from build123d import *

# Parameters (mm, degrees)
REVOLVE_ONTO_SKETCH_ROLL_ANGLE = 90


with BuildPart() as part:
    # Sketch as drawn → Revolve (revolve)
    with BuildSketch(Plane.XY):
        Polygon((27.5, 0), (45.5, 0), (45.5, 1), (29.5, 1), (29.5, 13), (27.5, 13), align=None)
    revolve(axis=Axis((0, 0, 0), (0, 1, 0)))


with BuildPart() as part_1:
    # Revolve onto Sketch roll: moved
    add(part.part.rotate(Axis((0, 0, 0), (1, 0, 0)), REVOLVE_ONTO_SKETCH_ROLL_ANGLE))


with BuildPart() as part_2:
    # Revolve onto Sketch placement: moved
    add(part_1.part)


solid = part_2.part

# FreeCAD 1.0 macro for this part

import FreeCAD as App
import Part
import Sketcher

V = App.Vector
Q = App.Units.Quantity

doc = App.newDocument("Part")
params = doc.addObject("Spreadsheet::Sheet", "Params")
for row, (alias, value) in enumerate([
    ("sketch1_width", "18 mm"),
    ("sketch1_width2", "16 mm"),
    ("sketch1_height", "1 mm"),
    ("sketch1_height2", "12 mm"),
    ("revolution_angle", "360 deg"),
], start=1):
    params.set(f"A{row}", alias)
    params.set(f"B{row}", "=" + value)
    params.setAlias(f"B{row}", alias)

body = doc.addObject("PartDesign::Body", "Body")

# Sketch on XY plane
sketch1 = body.newObject("Sketcher::SketchObject", "Sketch")
sketch1.AttachmentSupport = (doc.getObject("XY_Plane"), [""])
sketch1.MapMode = "FlatFace"
sketch1.addGeometry(Part.LineSegment(V(27.5, 0, 0), V(45.5, 0, 0)), False)
sketch1.addGeometry(Part.LineSegment(V(45.5, 0, 0), V(45.5, 1, 0)), False)
sketch1.addGeometry(Part.LineSegment(V(45.5, 1, 0), V(29.5, 1, 0)), False)
sketch1.addGeometry(Part.LineSegment(V(29.5, 1, 0), V(29.5, 13, 0)), False)
sketch1.addGeometry(Part.LineSegment(V(29.5, 13, 0), V(27.5, 13, 0)), False)
sketch1.addGeometry(Part.LineSegment(V(27.5, 13, 0), V(27.5, 0, 0)), False)
sketch1.addConstraint(Sketcher.Constraint("Coincident", 0, 2, 1, 1))
sketch1.addConstraint(Sketcher.Constraint("Coincident", 1, 2, 2, 1))
sketch1.addConstraint(Sketcher.Constraint("Coincident", 2, 2, 3, 1))
sketch1.addConstraint(Sketcher.Constraint("Coincident", 3, 2, 4, 1))
sketch1.addConstraint(Sketcher.Constraint("Coincident", 4, 2, 5, 1))
sketch1.addConstraint(Sketcher.Constraint("Coincident", 5, 2, 0, 1))
sketch1.addConstraint(Sketcher.Constraint("Horizontal", 0))
sketch1.addConstraint(Sketcher.Constraint("Vertical", 1))
sketch1.addConstraint(Sketcher.Constraint("Horizontal", 2))
sketch1.addConstraint(Sketcher.Constraint("Vertical", 3))
sketch1.addConstraint(Sketcher.Constraint("Horizontal", 4))
sketch1.addConstraint(Sketcher.Constraint("Vertical", 5))
sketch1.addConstraint(Sketcher.Constraint("PointOnObject", 0, 2, -1))
sketch1.addConstraint(Sketcher.Constraint("DistanceX", 0, 1, 0, 2, Q("18 mm")))
sketch1.addConstraint(Sketcher.Constraint("DistanceX", 2, 2, 2, 1, Q("16 mm")))
sketch1.addConstraint(Sketcher.Constraint("DistanceY", 1, 1, 1, 2, Q("1 mm")))
sketch1.addConstraint(Sketcher.Constraint("DistanceY", 3, 1, 3, 2, Q("12 mm")))
sketch1.addConstraint(Sketcher.Constraint("DistanceX", -1, 1, 0, 2, Q("45.5 mm")))
sketch1.setExpression("Constraints[13]", "Params.sketch1_width")
sketch1.setExpression("Constraints[14]", "Params.sketch1_width2")
sketch1.setExpression("Constraints[15]", "Params.sketch1_height")
sketch1.setExpression("Constraints[16]", "Params.sketch1_height2")
revolution = body.newObject("PartDesign::Revolution", "Revolution")
revolution.Profile = sketch1
revolution.ReferenceAxis = (sketch1, ["V_Axis"])
revolution.setExpression("Angle", "Params.revolution_angle")
body2 = doc.addObject("PartDesign::Body", "Body001")
doc.recompute()

body.Placement = App.Placement(V(0, 0, 0), App.Rotation(V(1, 0, 0), 90))
boolean = body2.newObject("PartDesign::Boolean", "Boolean")
boolean.Type = "Fuse"
boolean.addObjects([body])

doc.recompute()
